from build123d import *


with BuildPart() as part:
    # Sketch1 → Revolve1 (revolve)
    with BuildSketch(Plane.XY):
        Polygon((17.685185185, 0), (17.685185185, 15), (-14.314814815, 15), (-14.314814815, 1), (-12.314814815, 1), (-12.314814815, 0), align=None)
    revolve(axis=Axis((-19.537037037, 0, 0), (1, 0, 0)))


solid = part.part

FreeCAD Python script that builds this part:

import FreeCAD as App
import Part
import Sketcher
from FreeCAD import Vector


def add_polygon(sketch, points):
    """Adds a closed chain of lines whose ends are joined by coincident constraints."""
    first, n = sketch.GeometryCount, len(points)
    for a, b in zip(points, points[1:] + points[:1]):
        sketch.addGeometry(Part.LineSegment(App.Vector(*a, 0), App.Vector(*b, 0)), False)
    for i in range(n):
        sketch.addConstraint(Sketcher.Constraint("Coincident", first + i, 2, first + (i + 1) % n, 1))

doc = App.newDocument("Part")
params = doc.addObject("Spreadsheet::Sheet", "Params")
for row, (alias, value) in enumerate([
    ("sketch1_width", "32 mm"),
    ("sketch1_width2", "2 mm"),
    ("sketch1_height", "15 mm"),
    ("sketch1_height2", "14 mm"),
    ("revolution_angle", "360 deg"),
], start=1):
    params.set(f"A{row}", alias)
    params.set(f"B{row}", "=" + value)
    params.setAlias(f"B{row}", alias)

body = doc.addObject("PartDesign::Body", "Body")

# Sketch on XY plane
sketch1 = body.newObject("Sketcher::SketchObject", "Sketch")
sketch1.AttachmentSupport = (doc.getObject("XY_Plane"), [""])
sketch1.MapMode = "FlatFace"
add_polygon(sketch1, [(17.7, 0), (17.7, 15), (-14.3, 15), (-14.3, 1), (-12.3, 1), (-12.3, 0)])  # lines 0-5
sketch1.addConstraint([
    Sketcher.Constraint("Vertical", 0),
    Sketcher.Constraint("Horizontal", 1),
    Sketcher.Constraint("Vertical", 2),
    Sketcher.Constraint("Horizontal", 3),
    Sketcher.Constraint("Vertical", 4),
    Sketcher.Constraint("Horizontal", 5),
    Sketcher.Constraint("PointOnObject", 4, 2, -1),
    Sketcher.Constraint("DistanceX", 1, 2, 1, 1, 32.0),
    Sketcher.Constraint("DistanceX", 3, 1, 3, 2, 2.0),
    Sketcher.Constraint("DistanceY", 0, 1, 0, 2, 15.0),
    Sketcher.Constraint("DistanceY", 2, 2, 2, 1, 14.0),
    Sketcher.Constraint("DistanceX", -1, 1, 0, 2, 17.685185),
])
sketch1.setExpression("Constraints[13]", "Params.sketch1_width")
sketch1.setExpression("Constraints[14]", "Params.sketch1_width2")
sketch1.setExpression("Constraints[15]", "Params.sketch1_height")
sketch1.setExpression("Constraints[16]", "Params.sketch1_height2")
revolution = body.newObject("PartDesign::Revolution", "Revolution")
revolution.Profile = sketch1
revolution.ReferenceAxis = (sketch1, ["H_Axis"])
revolution.setExpression("Angle", "Params.revolution_angle")

doc.recompute()
